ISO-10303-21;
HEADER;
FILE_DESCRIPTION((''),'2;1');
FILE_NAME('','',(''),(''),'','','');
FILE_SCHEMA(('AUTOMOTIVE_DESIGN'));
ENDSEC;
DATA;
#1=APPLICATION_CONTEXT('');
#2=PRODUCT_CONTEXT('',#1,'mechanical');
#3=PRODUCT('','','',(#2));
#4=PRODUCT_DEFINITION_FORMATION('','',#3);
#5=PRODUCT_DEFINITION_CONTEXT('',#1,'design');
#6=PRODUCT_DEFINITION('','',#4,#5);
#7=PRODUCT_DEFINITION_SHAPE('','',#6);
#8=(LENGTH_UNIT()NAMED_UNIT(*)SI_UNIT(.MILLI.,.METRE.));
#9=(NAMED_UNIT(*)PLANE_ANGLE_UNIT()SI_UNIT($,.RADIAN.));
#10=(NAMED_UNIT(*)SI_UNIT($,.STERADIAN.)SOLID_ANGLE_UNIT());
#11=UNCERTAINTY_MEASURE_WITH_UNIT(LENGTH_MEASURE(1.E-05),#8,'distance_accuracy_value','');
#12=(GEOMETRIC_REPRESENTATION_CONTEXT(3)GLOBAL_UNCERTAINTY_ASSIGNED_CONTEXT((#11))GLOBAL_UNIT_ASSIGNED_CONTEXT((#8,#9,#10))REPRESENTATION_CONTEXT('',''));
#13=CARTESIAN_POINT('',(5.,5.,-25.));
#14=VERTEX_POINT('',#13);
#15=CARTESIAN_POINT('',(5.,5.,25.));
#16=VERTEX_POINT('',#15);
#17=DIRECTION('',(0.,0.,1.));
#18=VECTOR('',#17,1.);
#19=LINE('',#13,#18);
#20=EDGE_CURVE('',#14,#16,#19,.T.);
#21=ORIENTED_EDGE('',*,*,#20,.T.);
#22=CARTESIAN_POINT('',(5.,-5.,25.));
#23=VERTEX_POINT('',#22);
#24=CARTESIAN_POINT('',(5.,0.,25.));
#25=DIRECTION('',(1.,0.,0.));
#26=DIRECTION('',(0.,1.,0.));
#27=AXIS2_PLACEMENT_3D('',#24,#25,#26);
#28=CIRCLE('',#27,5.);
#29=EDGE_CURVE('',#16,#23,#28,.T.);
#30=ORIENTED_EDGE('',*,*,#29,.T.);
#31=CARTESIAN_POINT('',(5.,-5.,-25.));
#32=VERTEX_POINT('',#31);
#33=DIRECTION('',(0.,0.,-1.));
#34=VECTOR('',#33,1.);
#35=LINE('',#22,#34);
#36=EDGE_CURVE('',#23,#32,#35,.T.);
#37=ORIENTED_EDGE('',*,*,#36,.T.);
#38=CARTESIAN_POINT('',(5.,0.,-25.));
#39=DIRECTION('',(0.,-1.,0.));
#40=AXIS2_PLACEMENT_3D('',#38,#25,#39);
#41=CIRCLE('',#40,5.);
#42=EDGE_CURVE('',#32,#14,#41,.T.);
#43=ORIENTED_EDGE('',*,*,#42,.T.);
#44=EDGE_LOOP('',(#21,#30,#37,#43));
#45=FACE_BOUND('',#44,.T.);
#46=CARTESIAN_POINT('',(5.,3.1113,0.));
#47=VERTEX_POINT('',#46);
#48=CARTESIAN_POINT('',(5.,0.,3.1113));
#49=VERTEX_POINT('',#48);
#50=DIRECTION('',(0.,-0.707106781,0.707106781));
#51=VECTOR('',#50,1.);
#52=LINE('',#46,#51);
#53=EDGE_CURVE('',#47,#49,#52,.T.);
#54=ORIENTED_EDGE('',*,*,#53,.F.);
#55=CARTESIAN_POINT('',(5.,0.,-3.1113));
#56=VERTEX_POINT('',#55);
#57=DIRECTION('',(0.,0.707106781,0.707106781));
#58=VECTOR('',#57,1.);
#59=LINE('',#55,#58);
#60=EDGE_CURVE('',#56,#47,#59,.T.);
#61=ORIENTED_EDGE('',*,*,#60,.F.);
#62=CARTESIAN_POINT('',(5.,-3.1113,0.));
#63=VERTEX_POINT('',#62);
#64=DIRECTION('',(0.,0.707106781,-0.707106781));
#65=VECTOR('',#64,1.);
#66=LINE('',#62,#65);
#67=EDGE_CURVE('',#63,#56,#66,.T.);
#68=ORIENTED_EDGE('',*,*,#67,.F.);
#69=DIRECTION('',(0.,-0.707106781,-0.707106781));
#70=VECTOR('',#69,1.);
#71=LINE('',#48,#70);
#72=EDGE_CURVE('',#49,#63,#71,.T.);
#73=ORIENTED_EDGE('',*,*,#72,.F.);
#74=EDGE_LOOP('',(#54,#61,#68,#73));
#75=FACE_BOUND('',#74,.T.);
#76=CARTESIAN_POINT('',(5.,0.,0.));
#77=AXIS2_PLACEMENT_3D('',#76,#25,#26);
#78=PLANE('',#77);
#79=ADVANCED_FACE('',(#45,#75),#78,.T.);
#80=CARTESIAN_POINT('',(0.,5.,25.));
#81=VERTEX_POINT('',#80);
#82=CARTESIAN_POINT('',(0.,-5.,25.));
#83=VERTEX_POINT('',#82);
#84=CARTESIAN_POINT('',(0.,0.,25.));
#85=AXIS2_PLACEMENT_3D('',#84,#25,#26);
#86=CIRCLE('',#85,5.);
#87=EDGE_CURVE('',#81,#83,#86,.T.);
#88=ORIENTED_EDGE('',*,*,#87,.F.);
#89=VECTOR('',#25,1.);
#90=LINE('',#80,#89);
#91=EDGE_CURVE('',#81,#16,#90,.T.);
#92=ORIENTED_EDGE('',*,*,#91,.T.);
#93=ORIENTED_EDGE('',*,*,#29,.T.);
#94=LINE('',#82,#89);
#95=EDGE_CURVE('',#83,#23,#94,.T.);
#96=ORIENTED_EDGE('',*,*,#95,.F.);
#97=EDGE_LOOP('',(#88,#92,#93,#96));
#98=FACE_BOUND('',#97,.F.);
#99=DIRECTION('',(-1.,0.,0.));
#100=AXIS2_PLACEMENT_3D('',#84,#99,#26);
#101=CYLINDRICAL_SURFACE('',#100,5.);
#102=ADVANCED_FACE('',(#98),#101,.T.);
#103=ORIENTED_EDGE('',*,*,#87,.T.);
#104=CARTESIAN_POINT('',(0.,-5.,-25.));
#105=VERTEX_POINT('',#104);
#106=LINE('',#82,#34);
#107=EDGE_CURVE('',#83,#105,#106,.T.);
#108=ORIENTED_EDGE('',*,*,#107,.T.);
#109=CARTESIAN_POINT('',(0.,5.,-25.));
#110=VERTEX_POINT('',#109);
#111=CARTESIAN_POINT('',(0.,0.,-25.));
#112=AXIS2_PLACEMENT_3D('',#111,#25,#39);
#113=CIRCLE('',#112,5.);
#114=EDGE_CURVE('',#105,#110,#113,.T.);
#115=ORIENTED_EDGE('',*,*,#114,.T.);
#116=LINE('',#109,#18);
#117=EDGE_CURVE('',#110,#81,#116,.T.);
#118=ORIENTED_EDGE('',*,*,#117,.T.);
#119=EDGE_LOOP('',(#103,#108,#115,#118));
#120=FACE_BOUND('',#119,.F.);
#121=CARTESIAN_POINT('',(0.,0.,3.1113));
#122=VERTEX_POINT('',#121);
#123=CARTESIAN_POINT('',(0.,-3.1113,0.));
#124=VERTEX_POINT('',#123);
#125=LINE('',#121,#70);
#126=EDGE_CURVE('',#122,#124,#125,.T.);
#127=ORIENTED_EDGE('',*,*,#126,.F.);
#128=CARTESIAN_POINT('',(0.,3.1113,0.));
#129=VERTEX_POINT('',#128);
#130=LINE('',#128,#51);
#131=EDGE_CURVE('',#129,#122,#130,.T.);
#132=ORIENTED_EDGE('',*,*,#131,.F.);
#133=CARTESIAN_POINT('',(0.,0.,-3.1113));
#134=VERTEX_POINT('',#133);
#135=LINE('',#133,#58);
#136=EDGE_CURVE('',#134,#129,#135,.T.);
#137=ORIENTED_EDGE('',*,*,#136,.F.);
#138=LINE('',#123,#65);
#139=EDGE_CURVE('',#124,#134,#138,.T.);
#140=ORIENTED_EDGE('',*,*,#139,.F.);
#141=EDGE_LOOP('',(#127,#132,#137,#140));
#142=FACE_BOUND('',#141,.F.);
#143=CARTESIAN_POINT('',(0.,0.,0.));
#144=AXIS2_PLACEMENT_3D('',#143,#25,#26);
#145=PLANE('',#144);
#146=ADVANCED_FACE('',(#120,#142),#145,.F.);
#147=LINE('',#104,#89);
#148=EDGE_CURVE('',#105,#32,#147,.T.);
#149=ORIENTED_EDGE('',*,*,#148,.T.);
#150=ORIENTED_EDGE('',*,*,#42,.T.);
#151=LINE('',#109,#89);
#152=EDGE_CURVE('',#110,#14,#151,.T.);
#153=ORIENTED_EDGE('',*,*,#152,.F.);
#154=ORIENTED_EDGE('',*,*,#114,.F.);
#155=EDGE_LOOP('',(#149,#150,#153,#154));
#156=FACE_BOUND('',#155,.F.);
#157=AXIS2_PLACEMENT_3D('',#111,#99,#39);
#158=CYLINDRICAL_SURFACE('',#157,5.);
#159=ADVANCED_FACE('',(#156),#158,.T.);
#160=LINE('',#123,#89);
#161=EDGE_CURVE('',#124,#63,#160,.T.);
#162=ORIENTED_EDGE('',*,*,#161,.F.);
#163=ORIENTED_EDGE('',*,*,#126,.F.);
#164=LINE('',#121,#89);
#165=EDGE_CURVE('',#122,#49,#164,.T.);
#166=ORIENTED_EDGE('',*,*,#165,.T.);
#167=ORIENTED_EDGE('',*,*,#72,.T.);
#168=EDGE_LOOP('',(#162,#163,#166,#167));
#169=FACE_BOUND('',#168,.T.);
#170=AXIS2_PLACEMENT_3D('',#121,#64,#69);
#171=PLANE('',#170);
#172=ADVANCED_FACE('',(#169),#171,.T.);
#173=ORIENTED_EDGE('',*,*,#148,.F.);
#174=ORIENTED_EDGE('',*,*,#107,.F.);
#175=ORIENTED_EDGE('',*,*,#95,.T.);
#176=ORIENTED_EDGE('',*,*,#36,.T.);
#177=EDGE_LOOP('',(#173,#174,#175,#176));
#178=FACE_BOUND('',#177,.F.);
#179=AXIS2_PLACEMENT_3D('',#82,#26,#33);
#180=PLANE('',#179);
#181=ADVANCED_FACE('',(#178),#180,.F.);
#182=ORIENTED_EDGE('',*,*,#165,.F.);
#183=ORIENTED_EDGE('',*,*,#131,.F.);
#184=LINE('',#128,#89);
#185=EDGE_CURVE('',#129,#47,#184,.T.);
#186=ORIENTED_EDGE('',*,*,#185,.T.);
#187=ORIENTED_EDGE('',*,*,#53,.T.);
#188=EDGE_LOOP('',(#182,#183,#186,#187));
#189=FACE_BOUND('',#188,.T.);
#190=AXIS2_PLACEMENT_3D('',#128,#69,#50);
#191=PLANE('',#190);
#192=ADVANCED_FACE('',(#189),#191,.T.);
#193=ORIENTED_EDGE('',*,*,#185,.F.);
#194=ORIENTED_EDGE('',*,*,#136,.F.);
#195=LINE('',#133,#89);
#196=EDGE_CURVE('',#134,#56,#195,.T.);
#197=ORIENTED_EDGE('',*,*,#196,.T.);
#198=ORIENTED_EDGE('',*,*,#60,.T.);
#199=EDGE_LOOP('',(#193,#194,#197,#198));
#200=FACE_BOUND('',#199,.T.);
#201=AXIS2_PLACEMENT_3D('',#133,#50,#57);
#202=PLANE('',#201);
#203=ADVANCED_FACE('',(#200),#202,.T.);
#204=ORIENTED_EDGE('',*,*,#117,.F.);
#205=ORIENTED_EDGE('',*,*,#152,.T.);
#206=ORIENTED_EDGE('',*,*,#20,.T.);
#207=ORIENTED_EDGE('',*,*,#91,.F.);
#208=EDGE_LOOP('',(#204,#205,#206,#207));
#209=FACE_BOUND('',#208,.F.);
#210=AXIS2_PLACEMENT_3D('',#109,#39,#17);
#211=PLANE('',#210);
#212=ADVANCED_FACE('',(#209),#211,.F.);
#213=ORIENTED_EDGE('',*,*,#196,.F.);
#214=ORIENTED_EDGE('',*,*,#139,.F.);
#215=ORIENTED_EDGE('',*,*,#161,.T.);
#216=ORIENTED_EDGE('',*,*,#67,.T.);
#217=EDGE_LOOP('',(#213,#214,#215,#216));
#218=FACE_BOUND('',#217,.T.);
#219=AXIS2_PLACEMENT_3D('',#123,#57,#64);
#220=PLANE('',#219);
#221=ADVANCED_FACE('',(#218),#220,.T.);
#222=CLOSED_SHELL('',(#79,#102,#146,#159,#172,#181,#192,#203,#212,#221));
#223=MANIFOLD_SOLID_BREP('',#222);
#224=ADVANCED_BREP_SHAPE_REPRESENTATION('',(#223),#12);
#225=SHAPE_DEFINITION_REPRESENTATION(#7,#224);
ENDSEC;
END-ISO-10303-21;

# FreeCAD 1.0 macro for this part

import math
import FreeCAD as App
import Part
import Sketcher

V = App.Vector
Q = App.Units.Quantity

doc = App.newDocument("Part")
body = doc.addObject("PartDesign::Body", "Body")

# Sketch on YZ plane
sketch1 = body.newObject("Sketcher::SketchObject", "Sketch")
sketch1.AttachmentSupport = (doc.getObject("YZ_Plane"), [""])
sketch1.MapMode = "FlatFace"
sketch1.addGeometry([
    Part.ArcOfCircle(Part.Circle(V(0, 25, 0), V(0, 0, 1), 5), math.radians(0), math.radians(180)),  # 0
    Part.LineSegment(V(-5, 25, 0), V(-5, -25, 0)),  # 1
    Part.ArcOfCircle(Part.Circle(V(0, -25, 0), V(0, 0, 1), 5), math.radians(180), math.radians(360)),  # 2
    Part.LineSegment(V(5, -25, 0), V(5, 25, 0)),  # 3
    Part.LineSegment(V(-3.1, 0, 0), V(0, 3.1, 0)),  # 4
    Part.LineSegment(V(0, 3.1, 0), V(3.1, 0, 0)),  # 5
    Part.LineSegment(V(3.1, 0, 0), V(0, -3.1, 0)),  # 6
    Part.LineSegment(V(0, -3.1, 0), V(-3.1, 0, 0)),  # 7
], False)
sketch1.addConstraint([
    Sketcher.Constraint("Tangent", 0, 2, 1, 1),
    Sketcher.Constraint("Tangent", 1, 2, 2, 1),
    Sketcher.Constraint("Tangent", 2, 2, 3, 1),
    Sketcher.Constraint("Tangent", 3, 2, 0, 1),
    Sketcher.Constraint("Coincident", 4, 2, 5, 1),
    Sketcher.Constraint("Coincident", 5, 2, 6, 1),
    Sketcher.Constraint("Coincident", 6, 2, 7, 1),
    Sketcher.Constraint("Coincident", 7, 2, 4, 1),
    Sketcher.Constraint("Vertical", 1),
    Sketcher.Constraint("Vertical", 3),
    Sketcher.Constraint("Symmetric", 0, 3, 2, 3, -1, 1),
    Sketcher.Constraint("Symmetric", 4, 2, 6, 2, -1, 1),
    Sketcher.Constraint("Symmetric", 5, 2, 7, 2, -1, 1),
    Sketcher.Constraint("PointOnObject", 4, 2, -2),
    Sketcher.Constraint("PointOnObject", 5, 2, -1),
    Sketcher.Constraint("Perpendicular", 4, 5),
    Sketcher.Constraint("Radius", 0, Q("5 mm")),
    Sketcher.Constraint("DistanceY", 1, 2, 1, 1, Q("50 mm")),
    Sketcher.Constraint("Distance", 4, Q("4.4 mm")),
])
pad1 = body.newObject("PartDesign::Pad", "Pad")
pad1.Profile = sketch1
pad1.Length = 5

doc.recompute()
